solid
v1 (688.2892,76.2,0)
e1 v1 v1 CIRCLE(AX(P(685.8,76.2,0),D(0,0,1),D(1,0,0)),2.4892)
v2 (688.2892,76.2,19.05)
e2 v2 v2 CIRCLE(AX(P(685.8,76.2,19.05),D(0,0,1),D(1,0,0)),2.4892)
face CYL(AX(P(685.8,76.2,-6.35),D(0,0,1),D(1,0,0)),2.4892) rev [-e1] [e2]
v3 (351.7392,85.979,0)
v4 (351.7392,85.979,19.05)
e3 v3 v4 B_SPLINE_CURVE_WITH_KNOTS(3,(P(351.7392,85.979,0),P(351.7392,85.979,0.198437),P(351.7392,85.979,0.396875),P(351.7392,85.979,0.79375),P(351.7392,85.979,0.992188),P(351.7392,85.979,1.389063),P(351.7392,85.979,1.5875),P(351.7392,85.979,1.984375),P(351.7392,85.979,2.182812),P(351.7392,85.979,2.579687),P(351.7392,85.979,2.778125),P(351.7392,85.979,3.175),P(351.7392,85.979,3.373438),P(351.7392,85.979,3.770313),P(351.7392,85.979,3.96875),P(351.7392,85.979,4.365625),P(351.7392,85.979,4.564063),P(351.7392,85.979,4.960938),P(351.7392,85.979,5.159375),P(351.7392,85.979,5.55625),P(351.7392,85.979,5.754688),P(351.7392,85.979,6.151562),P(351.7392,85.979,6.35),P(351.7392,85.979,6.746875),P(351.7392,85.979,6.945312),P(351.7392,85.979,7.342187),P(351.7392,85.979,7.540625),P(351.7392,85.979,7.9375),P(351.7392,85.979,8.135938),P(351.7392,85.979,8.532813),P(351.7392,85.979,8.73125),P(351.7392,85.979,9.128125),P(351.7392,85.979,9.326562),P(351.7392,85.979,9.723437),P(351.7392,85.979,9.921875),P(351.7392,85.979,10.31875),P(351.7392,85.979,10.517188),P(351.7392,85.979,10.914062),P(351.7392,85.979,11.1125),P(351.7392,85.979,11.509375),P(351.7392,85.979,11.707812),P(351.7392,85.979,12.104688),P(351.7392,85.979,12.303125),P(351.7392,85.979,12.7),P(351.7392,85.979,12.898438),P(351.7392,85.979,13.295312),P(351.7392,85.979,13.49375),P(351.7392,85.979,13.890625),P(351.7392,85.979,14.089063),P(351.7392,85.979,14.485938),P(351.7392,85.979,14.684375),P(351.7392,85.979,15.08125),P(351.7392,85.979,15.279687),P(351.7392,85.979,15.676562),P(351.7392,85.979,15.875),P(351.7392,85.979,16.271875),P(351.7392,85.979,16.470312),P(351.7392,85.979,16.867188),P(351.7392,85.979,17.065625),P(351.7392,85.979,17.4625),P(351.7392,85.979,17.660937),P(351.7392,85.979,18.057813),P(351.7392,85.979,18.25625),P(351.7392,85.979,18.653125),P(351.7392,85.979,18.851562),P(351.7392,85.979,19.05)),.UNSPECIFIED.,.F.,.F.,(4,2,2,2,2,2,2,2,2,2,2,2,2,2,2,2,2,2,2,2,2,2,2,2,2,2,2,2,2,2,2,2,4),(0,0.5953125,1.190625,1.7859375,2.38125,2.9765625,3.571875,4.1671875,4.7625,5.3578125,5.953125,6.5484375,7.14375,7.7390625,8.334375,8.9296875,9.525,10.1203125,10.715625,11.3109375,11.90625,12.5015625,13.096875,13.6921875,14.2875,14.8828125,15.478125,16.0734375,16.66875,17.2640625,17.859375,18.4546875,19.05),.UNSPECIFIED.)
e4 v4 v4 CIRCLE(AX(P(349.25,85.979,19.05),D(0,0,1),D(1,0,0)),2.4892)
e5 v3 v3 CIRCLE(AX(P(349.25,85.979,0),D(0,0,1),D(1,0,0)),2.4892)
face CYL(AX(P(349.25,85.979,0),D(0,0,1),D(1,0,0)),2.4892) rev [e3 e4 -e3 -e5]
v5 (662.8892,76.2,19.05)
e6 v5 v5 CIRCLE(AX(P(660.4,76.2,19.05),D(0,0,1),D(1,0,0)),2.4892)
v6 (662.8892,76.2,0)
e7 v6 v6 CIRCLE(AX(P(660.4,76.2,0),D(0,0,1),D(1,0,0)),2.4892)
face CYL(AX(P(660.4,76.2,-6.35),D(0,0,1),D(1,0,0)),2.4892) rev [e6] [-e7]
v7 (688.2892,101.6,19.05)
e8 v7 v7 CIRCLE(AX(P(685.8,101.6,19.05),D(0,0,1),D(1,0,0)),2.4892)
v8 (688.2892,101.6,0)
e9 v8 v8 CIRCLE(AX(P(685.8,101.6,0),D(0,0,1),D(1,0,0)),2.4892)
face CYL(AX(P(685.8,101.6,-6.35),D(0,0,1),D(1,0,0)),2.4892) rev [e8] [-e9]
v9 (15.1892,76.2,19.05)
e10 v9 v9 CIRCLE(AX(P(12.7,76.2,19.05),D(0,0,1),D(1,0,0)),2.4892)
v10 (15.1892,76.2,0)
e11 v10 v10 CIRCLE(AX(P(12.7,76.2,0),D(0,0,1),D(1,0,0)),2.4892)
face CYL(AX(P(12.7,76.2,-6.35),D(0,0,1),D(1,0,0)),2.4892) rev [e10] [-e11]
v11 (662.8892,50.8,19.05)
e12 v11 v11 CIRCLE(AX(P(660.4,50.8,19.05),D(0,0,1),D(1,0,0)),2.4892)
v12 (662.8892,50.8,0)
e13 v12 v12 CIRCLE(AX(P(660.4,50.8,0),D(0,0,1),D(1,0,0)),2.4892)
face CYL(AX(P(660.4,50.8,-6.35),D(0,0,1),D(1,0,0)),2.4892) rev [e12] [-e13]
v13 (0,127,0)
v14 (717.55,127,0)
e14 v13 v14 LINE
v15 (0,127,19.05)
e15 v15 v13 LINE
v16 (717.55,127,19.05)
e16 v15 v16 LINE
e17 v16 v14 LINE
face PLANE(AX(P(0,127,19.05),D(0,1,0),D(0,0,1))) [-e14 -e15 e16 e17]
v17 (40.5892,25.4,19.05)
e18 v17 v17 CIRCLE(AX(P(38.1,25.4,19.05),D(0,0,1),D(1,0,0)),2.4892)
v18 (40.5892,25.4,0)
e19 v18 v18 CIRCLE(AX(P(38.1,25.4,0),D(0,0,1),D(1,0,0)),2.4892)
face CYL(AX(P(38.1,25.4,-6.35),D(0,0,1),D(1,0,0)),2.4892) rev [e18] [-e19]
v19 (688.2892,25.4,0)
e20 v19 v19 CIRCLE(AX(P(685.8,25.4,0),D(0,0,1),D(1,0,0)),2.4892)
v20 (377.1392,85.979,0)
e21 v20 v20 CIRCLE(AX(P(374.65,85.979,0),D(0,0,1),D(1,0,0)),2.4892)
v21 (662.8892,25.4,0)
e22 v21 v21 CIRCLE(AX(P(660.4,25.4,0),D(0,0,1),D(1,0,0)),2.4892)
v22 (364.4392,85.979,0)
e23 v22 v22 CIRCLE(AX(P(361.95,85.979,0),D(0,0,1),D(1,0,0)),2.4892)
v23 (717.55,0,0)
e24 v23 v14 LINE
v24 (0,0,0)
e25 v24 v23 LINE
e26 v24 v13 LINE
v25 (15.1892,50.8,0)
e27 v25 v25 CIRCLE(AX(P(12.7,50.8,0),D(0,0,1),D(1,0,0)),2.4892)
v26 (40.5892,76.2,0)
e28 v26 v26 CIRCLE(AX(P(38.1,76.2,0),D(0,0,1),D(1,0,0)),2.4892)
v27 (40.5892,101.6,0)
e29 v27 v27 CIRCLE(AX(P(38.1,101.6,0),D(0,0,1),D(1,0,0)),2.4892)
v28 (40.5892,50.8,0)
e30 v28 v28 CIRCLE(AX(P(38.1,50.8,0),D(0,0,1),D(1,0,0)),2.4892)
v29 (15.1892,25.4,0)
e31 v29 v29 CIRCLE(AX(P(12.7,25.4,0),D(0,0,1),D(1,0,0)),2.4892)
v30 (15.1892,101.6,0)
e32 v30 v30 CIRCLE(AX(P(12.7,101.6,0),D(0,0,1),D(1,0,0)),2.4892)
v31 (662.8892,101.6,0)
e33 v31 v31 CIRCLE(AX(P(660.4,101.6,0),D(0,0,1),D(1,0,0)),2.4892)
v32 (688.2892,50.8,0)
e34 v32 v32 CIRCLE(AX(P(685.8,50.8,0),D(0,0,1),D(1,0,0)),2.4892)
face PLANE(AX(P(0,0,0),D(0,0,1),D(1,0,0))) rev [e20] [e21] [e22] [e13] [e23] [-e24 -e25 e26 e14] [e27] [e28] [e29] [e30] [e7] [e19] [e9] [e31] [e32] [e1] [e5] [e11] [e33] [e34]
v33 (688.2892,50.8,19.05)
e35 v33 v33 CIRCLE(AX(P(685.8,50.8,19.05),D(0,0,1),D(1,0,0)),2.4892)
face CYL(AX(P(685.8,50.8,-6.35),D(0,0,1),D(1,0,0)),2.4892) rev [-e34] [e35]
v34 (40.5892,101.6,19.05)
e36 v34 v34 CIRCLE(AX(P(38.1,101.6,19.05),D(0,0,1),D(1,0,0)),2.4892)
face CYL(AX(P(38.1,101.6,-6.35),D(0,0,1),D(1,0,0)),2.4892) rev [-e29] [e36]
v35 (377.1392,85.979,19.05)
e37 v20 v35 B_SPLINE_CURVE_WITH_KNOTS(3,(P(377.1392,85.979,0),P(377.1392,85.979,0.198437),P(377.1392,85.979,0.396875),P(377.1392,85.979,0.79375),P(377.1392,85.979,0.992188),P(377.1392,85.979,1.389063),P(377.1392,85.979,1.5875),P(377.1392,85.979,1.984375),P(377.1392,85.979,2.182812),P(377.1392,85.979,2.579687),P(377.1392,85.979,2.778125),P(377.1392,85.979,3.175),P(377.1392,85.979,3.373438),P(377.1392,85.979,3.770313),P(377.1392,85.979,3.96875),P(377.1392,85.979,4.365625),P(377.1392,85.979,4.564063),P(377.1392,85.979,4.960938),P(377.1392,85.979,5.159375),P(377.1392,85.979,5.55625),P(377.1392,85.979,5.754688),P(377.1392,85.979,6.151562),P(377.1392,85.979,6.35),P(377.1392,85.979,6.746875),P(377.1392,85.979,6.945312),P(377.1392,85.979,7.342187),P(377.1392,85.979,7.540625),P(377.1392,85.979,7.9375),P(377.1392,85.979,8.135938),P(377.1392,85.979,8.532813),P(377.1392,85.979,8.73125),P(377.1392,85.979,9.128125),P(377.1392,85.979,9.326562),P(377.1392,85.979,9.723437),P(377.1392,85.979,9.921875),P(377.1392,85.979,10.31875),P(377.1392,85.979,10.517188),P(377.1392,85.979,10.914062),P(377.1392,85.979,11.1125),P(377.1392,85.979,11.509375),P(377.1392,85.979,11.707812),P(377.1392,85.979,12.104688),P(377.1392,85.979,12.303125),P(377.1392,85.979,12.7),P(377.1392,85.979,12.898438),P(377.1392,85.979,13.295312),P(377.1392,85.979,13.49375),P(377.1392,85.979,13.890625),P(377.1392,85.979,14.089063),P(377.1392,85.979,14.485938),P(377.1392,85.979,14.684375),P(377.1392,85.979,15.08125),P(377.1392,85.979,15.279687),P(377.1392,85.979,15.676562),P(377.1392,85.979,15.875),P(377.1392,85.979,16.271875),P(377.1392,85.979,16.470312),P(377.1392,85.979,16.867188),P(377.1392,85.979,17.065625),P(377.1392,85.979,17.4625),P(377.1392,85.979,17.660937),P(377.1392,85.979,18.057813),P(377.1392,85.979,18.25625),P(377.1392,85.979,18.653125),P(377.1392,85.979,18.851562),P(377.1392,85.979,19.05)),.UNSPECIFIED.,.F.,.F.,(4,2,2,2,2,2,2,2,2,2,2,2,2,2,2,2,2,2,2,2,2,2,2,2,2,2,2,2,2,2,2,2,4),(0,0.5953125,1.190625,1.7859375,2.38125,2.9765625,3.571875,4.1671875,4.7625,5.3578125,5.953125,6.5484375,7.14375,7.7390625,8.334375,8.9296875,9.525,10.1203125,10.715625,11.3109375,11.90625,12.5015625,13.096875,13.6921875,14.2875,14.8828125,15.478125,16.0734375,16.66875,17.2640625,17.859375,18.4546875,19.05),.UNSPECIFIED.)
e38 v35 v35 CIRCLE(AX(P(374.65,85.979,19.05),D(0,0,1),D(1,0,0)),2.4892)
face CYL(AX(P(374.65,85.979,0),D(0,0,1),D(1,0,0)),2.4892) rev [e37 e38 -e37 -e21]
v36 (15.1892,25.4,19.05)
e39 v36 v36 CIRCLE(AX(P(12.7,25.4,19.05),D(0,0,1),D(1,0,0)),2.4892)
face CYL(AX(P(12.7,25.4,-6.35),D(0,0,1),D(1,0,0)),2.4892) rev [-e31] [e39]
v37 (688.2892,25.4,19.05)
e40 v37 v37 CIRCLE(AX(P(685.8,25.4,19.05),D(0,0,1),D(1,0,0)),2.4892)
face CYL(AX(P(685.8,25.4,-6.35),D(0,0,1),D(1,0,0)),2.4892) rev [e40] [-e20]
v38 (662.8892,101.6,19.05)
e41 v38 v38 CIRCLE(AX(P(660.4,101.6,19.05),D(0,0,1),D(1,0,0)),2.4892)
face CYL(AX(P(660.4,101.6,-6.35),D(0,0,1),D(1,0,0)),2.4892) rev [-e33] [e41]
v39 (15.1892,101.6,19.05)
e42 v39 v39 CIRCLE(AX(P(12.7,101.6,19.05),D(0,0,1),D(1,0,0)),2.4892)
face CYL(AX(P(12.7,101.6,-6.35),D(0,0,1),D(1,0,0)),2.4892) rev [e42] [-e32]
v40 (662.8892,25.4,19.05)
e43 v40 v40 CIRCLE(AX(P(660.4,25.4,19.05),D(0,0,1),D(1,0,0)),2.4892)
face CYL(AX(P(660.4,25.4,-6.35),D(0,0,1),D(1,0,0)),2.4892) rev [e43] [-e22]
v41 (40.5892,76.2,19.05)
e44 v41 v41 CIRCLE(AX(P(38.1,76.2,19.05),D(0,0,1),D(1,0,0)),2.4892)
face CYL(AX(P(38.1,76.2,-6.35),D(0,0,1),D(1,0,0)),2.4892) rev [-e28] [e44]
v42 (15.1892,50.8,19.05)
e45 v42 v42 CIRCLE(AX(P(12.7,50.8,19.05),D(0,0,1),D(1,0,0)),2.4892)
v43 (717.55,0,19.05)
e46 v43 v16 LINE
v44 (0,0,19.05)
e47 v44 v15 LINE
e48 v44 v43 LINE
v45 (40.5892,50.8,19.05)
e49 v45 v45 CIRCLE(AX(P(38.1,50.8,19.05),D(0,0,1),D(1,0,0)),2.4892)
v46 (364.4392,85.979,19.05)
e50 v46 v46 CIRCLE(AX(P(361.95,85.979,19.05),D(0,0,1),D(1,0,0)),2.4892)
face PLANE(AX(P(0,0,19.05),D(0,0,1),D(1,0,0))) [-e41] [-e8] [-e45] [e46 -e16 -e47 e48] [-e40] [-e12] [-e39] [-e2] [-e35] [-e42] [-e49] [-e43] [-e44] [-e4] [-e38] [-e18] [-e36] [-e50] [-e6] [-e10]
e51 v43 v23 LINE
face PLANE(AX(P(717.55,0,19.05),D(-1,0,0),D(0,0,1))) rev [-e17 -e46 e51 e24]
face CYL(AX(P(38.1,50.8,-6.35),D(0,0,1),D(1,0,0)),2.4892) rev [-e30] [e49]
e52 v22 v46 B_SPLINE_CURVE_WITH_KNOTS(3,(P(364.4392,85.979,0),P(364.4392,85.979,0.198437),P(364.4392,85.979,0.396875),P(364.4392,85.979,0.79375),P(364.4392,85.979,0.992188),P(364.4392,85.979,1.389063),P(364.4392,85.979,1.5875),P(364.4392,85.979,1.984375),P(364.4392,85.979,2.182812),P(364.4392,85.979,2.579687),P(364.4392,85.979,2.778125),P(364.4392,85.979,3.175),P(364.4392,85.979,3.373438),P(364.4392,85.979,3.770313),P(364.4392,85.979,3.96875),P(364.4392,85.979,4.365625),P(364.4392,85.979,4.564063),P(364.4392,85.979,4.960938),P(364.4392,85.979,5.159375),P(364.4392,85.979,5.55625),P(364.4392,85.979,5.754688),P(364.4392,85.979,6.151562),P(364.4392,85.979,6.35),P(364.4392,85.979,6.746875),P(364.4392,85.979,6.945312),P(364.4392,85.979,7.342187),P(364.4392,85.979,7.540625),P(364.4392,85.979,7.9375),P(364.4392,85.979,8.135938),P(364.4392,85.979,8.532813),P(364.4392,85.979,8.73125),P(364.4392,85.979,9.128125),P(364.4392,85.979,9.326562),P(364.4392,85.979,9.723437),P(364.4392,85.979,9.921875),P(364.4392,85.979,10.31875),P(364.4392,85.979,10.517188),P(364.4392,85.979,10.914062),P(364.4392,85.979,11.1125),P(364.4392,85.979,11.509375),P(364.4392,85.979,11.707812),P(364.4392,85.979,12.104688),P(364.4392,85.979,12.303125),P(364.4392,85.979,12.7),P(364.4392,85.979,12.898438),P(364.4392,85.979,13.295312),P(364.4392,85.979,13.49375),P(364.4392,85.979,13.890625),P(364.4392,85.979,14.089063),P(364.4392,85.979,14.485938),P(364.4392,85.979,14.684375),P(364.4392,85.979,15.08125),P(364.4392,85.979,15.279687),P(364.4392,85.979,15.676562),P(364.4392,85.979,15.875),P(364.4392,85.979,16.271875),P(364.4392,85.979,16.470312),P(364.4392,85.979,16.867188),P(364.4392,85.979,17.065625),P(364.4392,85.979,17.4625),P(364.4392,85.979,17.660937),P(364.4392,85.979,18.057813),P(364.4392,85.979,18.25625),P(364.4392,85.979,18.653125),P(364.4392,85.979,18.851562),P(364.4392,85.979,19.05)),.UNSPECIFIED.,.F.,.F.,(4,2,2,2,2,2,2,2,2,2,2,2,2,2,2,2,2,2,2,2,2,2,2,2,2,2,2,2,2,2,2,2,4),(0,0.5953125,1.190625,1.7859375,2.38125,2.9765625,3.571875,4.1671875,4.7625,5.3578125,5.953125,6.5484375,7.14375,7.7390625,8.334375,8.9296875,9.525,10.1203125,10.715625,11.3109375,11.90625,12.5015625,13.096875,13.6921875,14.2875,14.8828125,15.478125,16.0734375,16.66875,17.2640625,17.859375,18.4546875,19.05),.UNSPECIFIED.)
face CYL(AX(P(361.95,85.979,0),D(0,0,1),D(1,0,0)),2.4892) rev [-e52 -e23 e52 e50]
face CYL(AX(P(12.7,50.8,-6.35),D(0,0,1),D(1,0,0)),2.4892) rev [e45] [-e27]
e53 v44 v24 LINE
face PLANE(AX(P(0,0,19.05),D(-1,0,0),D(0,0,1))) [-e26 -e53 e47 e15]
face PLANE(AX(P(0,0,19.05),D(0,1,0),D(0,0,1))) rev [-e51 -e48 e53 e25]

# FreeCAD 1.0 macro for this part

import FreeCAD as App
import Part
import Sketcher
from FreeCAD import Vector
Q = App.Units.Quantity

doc = App.newDocument("Part")
body = doc.addObject("PartDesign::Body", "Body")

# Sketch on XY plane
sketch1 = doc.addObject("Sketcher::SketchObject", "Sketch")
body.addObject(sketch1)
sketch1.AttachmentSupport = (doc.XY_Plane, [""])
sketch1.MapMode = "FlatFace"
sketch1.addGeometry(Part.LineSegment(Vector(0, 127, 0), Vector(0, 0, 0)), False)
sketch1.addGeometry(Part.LineSegment(Vector(0, 0, 0), Vector(718, 0, 0)), False)
sketch1.addGeometry(Part.LineSegment(Vector(718, 0, 0), Vector(718, 127, 0)), False)
sketch1.addGeometry(Part.LineSegment(Vector(718, 127, 0), Vector(0, 127, 0)), False)
sketch1.addConstraint(Sketcher.Constraint("Coincident", 0, 2, 1, 1))
sketch1.addConstraint(Sketcher.Constraint("Coincident", 1, 2, 2, 1))
sketch1.addConstraint(Sketcher.Constraint("Coincident", 2, 2, 3, 1))
sketch1.addConstraint(Sketcher.Constraint("Coincident", 3, 2, 0, 1))
sketch1.addConstraint(Sketcher.Constraint("Vertical", 0))
sketch1.addConstraint(Sketcher.Constraint("Horizontal", 1))
sketch1.addConstraint(Sketcher.Constraint("Vertical", 2))
sketch1.addConstraint(Sketcher.Constraint("Horizontal", 3))
sketch1.addConstraint(Sketcher.Constraint("Coincident", 0, 2, -1, 1))
sketch1.addConstraint(Sketcher.Constraint("DistanceY", 0, 2, 0, 1, Q("5 in")))
sketch1.addConstraint(Sketcher.Constraint("DistanceX", 1, 1, 1, 2, Q("28.25 in")))
pad1 = doc.addObject("PartDesign::Pad", "Pad")
body.addObject(pad1)
pad1.Profile = sketch1
pad1.Length = Q("0.75 in")

# Sketch on XY plane
sketch2 = doc.addObject("Sketcher::SketchObject", "Sketch001")
body.addObject(sketch2)
sketch2.AttachmentSupport = (doc.XY_Plane, [""])
sketch2.MapMode = "FlatFace"
sketch2.AttachmentOffset = App.Placement(Vector(0, 0, 0.75 * 25.4), App.Rotation())
sketch2.addGeometry(Part.Circle(Vector(12.7, 101.6, 0), Vector(0, 0, 1), 2.5), False)
sketch2.addGeometry(Part.Circle(Vector(38.1, 101.6, 0), Vector(0, 0, 1), 2.5), False)
sketch2.addGeometry(Part.Circle(Vector(38.1, 76.2, 0), Vector(0, 0, 1), 2.5), False)
sketch2.addGeometry(Part.Circle(Vector(38.1, 50.8, 0), Vector(0, 0, 1), 2.5), False)
sketch2.addGeometry(Part.Circle(Vector(38.1, 25.4, 0), Vector(0, 0, 1), 2.5), False)
sketch2.addGeometry(Part.Circle(Vector(12.7, 76.2, 0), Vector(0, 0, 1), 2.5), False)
sketch2.addGeometry(Part.Circle(Vector(12.7, 50.8, 0), Vector(0, 0, 1), 2.5), False)
sketch2.addGeometry(Part.Circle(Vector(12.7, 25.4, 0), Vector(0, 0, 1), 2.5), False)
sketch2.addGeometry(Part.Circle(Vector(685.8, 101.6, 0), Vector(0, 0, 1), 2.5), False)
sketch2.addGeometry(Part.Circle(Vector(660.4, 101.6, 0), Vector(0, 0, 1), 2.5), False)
sketch2.addGeometry(Part.Circle(Vector(660.4, 76.2, 0), Vector(0, 0, 1), 2.5), False)
sketch2.addGeometry(Part.Circle(Vector(660.4, 50.8, 0), Vector(0, 0, 1), 2.5), False)
sketch2.addGeometry(Part.Circle(Vector(660.4, 25.4, 0), Vector(0, 0, 1), 2.5), False)
sketch2.addGeometry(Part.Circle(Vector(685.8, 76.2, 0), Vector(0, 0, 1), 2.5), False)
sketch2.addGeometry(Part.Circle(Vector(685.8, 50.8, 0), Vector(0, 0, 1), 2.5), False)
sketch2.addGeometry(Part.Circle(Vector(685.8, 25.4, 0), Vector(0, 0, 1), 2.5), False)
sketch2.addConstraint(Sketcher.Constraint("Equal", 0, 1))
sketch2.addConstraint(Sketcher.Constraint("Equal", 1, 2))
sketch2.addConstraint(Sketcher.Constraint("Equal", 2, 3))
sketch2.addConstraint(Sketcher.Constraint("Equal", 3, 4))
sketch2.addConstraint(Sketcher.Constraint("Equal", 4, 5))
sketch2.addConstraint(Sketcher.Constraint("Equal", 5, 6))
sketch2.addConstraint(Sketcher.Constraint("Equal", 6, 7))
sketch2.addConstraint(Sketcher.Constraint("Equal", 7, 8))
sketch2.addConstraint(Sketcher.Constraint("Equal", 8, 9))
sketch2.addConstraint(Sketcher.Constraint("Equal", 9, 10))
sketch2.addConstraint(Sketcher.Constraint("Equal", 10, 11))
sketch2.addConstraint(Sketcher.Constraint("Equal", 11, 12))
sketch2.addConstraint(Sketcher.Constraint("Equal", 12, 13))
sketch2.addConstraint(Sketcher.Constraint("Equal", 13, 14))
sketch2.addConstraint(Sketcher.Constraint("Equal", 14, 15))
sketch2.addConstraint(Sketcher.Constraint("Horizontal", 0, 3, 1, 3))
sketch2.addConstraint(Sketcher.Constraint("Horizontal", 2, 3, 5, 3))
sketch2.addConstraint(Sketcher.Constraint("Horizontal", 3, 3, 6, 3))
sketch2.addConstraint(Sketcher.Constraint("Horizontal", 4, 3, 7, 3))
sketch2.addConstraint(Sketcher.Constraint("Horizontal", 1, 3, 8, 3))
sketch2.addConstraint(Sketcher.Constraint("Horizontal", 8, 3, 9, 3))
sketch2.addConstraint(Sketcher.Constraint("Horizontal", 5, 3, 10, 3))
sketch2.addConstraint(Sketcher.Constraint("Horizontal", 6, 3, 11, 3))
sketch2.addConstraint(Sketcher.Constraint("Horizontal", 7, 3, 12, 3))
sketch2.addConstraint(Sketcher.Constraint("Horizontal", 10, 3, 13, 3))
sketch2.addConstraint(Sketcher.Constraint("Horizontal", 11, 3, 14, 3))
sketch2.addConstraint(Sketcher.Constraint("Horizontal", 12, 3, 15, 3))
sketch2.addConstraint(Sketcher.Constraint("Vertical", 1, 3, 2, 3))
sketch2.addConstraint(Sketcher.Constraint("Vertical", 2, 3, 3, 3))
sketch2.addConstraint(Sketcher.Constraint("Vertical", 3, 3, 4, 3))
sketch2.addConstraint(Sketcher.Constraint("Vertical", 0, 3, 5, 3))
sketch2.addConstraint(Sketcher.Constraint("Vertical", 5, 3, 6, 3))
sketch2.addConstraint(Sketcher.Constraint("Vertical", 6, 3, 7, 3))
sketch2.addConstraint(Sketcher.Constraint("Vertical", 9, 3, 10, 3))
sketch2.addConstraint(Sketcher.Constraint("Vertical", 10, 3, 11, 3))
sketch2.addConstraint(Sketcher.Constraint("Vertical", 11, 3, 12, 3))
sketch2.addConstraint(Sketcher.Constraint("Vertical", 8, 3, 13, 3))
sketch2.addConstraint(Sketcher.Constraint("Vertical", 13, 3, 14, 3))
sketch2.addConstraint(Sketcher.Constraint("Vertical", 14, 3, 15, 3))
sketch2.addConstraint(Sketcher.Constraint("Diameter", 0, Q("0.196 in")))
sketch2.addConstraint(Sketcher.Constraint("DistanceY", -1, 1, 0, 3, Q("4 in")))
sketch2.addConstraint(Sketcher.Constraint("DistanceY", -1, 1, 2, 3, Q("3 in")))
sketch2.addConstraint(Sketcher.Constraint("DistanceY", -1, 1, 3, 3, Q("2 in")))
sketch2.addConstraint(Sketcher.Constraint("DistanceY", -1, 1, 4, 3, Q("1 in")))
sketch2.addConstraint(Sketcher.Constraint("DistanceX", -1, 1, 8, 3, Q("27 in")))
sketch2.addConstraint(Sketcher.Constraint("DistanceX", -1, 1, 9, 3, Q("26 in")))
sketch2.addConstraint(Sketcher.Constraint("DistanceX", 0, 3, 1, 3, Q("1 in")))
sketch2.addConstraint(Sketcher.Constraint("DistanceX", -1, 1, 0, 3, Q("0.5 in")))
pocket1 = doc.addObject("PartDesign::Pocket", "Pocket")
body.addObject(pocket1)
pocket1.Profile = sketch2
pocket1.Length = Q("1 in")

# Sketch on XY plane
sketch3 = doc.addObject("Sketcher::SketchObject", "Sketch002")
body.addObject(sketch3)
sketch3.AttachmentSupport = (doc.XY_Plane, [""])
sketch3.MapMode = "FlatFace"
sketch3.AttachmentOffset = App.Placement(Vector(0, 0, 0.75 * 25.4), App.Rotation())
sketch3.addGeometry(Part.Circle(Vector(349.2, 86, 0), Vector(0, 0, 1), 2.5), False)
sketch3.addGeometry(Part.Circle(Vector(361.9, 86, 0), Vector(0, 0, 1), 2.5), False)
sketch3.addGeometry(Part.Circle(Vector(374.6, 86, 0), Vector(0, 0, 1), 2.5), False)
sketch3.addConstraint(Sketcher.Constraint("Equal", 0, 1))
sketch3.addConstraint(Sketcher.Constraint("Equal", 1, 2))
sketch3.addConstraint(Sketcher.Constraint("Horizontal", 0, 3, 1, 3))
sketch3.addConstraint(Sketcher.Constraint("Horizontal", 1, 3, 2, 3))
sketch3.addConstraint(Sketcher.Constraint("Diameter", 0, Q("0.196 in")))
sketch3.addConstraint(Sketcher.Constraint("DistanceX", 0, 3, 2, 3, Q("1 in")))
sketch3.addConstraint(Sketcher.Constraint("DistanceX", 0, 3, 1, 3, Q("0.5 in")))
sketch3.addConstraint(Sketcher.Constraint("DistanceX", -1, 1, 0, 3, Q("13.75 in")))
sketch3.addConstraint(Sketcher.Constraint("DistanceY", -1, 1, 0, 3, Q("3.385 in")))
pocket2 = doc.addObject("PartDesign::Pocket", "Pocket001")
body.addObject(pocket2)
pocket2.Profile = sketch3
pocket2.Type = "ThroughAll"

doc.recompute()
